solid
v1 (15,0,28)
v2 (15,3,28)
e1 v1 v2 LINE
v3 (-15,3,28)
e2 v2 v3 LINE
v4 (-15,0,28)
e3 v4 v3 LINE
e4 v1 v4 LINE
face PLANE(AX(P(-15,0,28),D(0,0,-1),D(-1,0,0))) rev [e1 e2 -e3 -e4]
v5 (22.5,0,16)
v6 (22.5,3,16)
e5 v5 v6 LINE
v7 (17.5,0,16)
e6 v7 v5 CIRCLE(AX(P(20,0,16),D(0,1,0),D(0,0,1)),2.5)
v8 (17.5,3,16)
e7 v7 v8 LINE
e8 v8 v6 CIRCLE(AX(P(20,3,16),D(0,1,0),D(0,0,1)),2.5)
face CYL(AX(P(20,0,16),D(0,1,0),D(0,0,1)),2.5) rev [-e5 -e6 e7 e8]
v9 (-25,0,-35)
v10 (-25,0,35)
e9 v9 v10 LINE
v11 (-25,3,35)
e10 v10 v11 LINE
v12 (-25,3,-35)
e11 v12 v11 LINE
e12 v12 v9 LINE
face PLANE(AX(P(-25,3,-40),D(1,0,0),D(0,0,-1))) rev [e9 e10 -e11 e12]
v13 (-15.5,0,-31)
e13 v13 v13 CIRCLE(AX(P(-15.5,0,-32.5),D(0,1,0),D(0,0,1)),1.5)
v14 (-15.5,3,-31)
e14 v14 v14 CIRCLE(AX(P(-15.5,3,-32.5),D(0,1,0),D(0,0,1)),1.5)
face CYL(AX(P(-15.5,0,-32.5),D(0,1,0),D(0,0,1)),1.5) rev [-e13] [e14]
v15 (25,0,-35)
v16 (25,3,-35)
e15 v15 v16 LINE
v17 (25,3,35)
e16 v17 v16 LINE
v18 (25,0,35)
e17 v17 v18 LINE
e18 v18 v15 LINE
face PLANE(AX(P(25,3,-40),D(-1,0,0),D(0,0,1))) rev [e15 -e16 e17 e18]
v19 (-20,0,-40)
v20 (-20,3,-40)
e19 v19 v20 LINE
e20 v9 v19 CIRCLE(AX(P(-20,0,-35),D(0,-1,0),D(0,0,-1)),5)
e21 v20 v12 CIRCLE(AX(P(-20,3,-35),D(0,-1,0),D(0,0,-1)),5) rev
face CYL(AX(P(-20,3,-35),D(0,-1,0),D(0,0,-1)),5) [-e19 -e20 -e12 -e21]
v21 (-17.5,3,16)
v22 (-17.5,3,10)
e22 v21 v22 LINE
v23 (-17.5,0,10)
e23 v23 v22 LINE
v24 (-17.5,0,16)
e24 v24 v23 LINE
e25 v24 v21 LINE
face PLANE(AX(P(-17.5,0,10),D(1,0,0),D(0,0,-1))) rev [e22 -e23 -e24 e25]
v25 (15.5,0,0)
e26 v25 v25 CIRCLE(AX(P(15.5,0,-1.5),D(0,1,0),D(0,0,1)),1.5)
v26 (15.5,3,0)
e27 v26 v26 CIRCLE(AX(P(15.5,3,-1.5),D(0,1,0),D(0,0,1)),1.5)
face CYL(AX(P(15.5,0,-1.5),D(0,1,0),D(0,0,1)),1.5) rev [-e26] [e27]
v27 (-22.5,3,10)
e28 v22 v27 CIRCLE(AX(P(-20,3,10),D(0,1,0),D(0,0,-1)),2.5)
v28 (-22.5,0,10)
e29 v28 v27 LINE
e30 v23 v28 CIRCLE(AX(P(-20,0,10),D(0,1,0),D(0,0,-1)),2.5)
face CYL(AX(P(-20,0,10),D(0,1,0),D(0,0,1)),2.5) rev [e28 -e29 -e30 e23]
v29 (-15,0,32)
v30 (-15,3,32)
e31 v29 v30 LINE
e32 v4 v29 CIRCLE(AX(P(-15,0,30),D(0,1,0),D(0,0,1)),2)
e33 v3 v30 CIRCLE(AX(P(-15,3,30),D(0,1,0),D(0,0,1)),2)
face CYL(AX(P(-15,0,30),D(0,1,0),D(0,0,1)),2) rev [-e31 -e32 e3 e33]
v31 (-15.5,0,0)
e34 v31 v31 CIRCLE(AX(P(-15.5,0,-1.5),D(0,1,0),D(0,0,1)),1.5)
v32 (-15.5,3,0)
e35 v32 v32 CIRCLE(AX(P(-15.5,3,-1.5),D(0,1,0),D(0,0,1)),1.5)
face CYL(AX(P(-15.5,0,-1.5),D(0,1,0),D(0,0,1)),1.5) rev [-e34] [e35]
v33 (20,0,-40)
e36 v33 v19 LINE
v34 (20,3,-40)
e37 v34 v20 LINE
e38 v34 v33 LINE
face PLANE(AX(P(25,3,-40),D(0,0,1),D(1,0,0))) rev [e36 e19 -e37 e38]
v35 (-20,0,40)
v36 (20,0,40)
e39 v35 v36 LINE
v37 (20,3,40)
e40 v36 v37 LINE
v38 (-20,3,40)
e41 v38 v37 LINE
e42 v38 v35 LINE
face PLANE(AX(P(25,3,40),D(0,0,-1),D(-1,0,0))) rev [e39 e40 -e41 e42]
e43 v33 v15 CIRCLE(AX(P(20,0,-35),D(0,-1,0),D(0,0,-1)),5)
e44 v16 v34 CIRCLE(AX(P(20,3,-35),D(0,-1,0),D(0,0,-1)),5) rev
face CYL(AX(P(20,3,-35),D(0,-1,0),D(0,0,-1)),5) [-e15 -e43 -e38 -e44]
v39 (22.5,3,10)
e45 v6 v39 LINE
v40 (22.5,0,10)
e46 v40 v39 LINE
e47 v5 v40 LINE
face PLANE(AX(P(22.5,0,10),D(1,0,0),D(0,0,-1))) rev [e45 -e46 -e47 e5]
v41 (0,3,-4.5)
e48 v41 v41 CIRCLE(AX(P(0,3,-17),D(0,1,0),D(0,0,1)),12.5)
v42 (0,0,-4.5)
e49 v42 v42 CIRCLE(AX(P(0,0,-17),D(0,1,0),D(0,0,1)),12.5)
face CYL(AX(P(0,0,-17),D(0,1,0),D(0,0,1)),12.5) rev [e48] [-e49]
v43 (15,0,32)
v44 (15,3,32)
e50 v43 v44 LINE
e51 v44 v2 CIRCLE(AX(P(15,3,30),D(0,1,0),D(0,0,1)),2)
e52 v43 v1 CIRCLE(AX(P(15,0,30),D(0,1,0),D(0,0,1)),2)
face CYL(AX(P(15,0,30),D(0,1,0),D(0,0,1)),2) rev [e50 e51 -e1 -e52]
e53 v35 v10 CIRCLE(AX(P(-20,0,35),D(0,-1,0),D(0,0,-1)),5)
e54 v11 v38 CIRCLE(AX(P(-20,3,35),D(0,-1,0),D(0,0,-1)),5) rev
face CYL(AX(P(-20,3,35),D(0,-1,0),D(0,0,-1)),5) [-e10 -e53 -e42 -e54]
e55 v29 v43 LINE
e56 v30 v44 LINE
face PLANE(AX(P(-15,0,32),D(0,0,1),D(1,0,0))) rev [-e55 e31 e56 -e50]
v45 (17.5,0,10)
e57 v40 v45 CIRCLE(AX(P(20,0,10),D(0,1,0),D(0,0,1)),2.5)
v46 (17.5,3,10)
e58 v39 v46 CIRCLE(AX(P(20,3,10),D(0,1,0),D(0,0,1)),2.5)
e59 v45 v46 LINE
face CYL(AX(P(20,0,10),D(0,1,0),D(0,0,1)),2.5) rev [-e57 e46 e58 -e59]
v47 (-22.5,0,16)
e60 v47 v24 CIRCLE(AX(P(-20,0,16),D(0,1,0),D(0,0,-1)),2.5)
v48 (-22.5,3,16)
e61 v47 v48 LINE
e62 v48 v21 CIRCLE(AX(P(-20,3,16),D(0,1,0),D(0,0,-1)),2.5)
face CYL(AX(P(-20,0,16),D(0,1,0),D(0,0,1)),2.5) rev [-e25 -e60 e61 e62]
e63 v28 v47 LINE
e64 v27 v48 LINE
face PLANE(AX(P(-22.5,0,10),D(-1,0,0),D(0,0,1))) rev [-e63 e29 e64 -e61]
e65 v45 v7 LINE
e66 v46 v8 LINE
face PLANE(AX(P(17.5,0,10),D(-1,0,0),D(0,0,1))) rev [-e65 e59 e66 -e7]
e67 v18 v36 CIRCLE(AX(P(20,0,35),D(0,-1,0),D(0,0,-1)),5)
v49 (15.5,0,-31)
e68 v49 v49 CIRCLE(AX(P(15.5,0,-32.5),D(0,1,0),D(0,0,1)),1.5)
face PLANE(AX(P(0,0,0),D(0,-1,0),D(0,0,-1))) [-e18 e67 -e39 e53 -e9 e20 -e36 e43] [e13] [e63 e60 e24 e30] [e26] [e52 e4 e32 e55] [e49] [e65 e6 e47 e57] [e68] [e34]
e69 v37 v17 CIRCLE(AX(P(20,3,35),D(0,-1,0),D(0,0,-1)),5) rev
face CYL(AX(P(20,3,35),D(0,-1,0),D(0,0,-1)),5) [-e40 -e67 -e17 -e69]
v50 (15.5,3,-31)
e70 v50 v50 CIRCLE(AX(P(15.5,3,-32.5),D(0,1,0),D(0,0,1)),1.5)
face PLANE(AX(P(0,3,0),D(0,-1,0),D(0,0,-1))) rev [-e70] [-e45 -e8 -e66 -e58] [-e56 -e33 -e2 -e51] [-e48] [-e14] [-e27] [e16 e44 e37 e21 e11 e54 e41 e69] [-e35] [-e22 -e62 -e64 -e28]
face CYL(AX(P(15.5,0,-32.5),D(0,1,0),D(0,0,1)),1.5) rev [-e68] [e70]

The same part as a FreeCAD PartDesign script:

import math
import FreeCAD as App
import Part
import Sketcher
from FreeCAD import Vector


def edges_at(feature, points):
    """Names of the edges that pass closest to the given points."""
    edges = feature.Shape.Edges
    near = lambda p: min(range(len(edges)), key=lambda i: edges[i].distToShape(Part.Vertex(*p))[0])
    return sorted({f"Edge{near(p) + 1}" for p in points})


def add_polygon(sketch, points):
    """Adds a closed chain of lines whose ends are joined by coincident constraints."""
    first, n = sketch.GeometryCount, len(points)
    for a, b in zip(points, points[1:] + points[:1]):
        sketch.addGeometry(Part.LineSegment(App.Vector(*a, 0), App.Vector(*b, 0)), False)
    for i in range(n):
        sketch.addConstraint(Sketcher.Constraint("Coincident", first + i, 2, first + (i + 1) % n, 1))

doc = App.newDocument("Part")
body = doc.addObject("PartDesign::Body", "Body")

sketch1 = doc.addObject("Sketcher::SketchObject", "Sketch")
body.addObject(sketch1)
sketch1.AttachmentSupport = (doc.XZ_Plane, [""])
sketch1.MapMode = "FlatFace"
add_polygon(sketch1, [(-25, -40), (-25, 40), (25, 40), (25, -40)])
sketch1.addConstraint([
    Sketcher.Constraint("Vertical", 0),
    Sketcher.Constraint("Horizontal", 1),
    Sketcher.Constraint("Vertical", 2),
    Sketcher.Constraint("Horizontal", 3),
    Sketcher.Constraint("Symmetric", 0, 2, 2, 2, -1, 1),
    Sketcher.Constraint("DistanceX", 1, 1, 1, 2, 50.0),
    Sketcher.Constraint("DistanceY", 0, 1, 0, 2, 80.0),
])
pad1 = doc.addObject("PartDesign::Pad", "Pad")
body.addObject(pad1)
pad1.Profile = sketch1
pad1.Length = 3
pad1.Reversed = True

sketch2 = doc.addObject("Sketcher::SketchObject", "Sketch001")
body.addObject(sketch2)
sketch2.AttachmentSupport = (doc.XZ_Plane, [""])
sketch2.MapMode = "FlatFace"
sketch2.AttachmentOffset = App.Placement(Vector(0, 0, -3), App.Rotation())
sketch2.addGeometry([
    Part.Circle(Vector(15.5, -32.5, 0), Vector(0, 0, 1), 1.5),
    Part.Circle(Vector(-15.5, -32.5, 0), Vector(0, 0, 1), 1.5),
    Part.Circle(Vector(-15.5, -1.5, 0), Vector(0, 0, 1), 1.5),
    Part.Circle(Vector(15.5, -1.5, 0), Vector(0, 0, 1), 1.5),
    Part.Circle(Vector(0, -17, 0), Vector(0, 0, 1), 12.5),
    Part.LineSegment(Vector(15, 28, 0), Vector(-15, 28, 0)),
    Part.ArcOfCircle(Part.Circle(Vector(-15, 30, 0), Vector(0, 0, 1), 2), math.radians(90), math.radians(270)),
    Part.LineSegment(Vector(-15, 32, 0), Vector(15, 32, 0)),
    Part.ArcOfCircle(Part.Circle(Vector(15, 30, 0), Vector(0, 0, 1), 2), math.radians(-90), math.radians(90)),
], False)
sketch2.addConstraint([
    Sketcher.Constraint("Tangent", 5, 2, 6, 2),
    Sketcher.Constraint("Tangent", 6, 1, 7, 1),
    Sketcher.Constraint("Tangent", 7, 2, 8, 2),
    Sketcher.Constraint("Tangent", 8, 1, 5, 1),
    Sketcher.Constraint("Horizontal", 5),
    Sketcher.Constraint("Horizontal", 7),
    Sketcher.Constraint("Equal", 0, 1),
    Sketcher.Constraint("Equal", 1, 2),
    Sketcher.Constraint("Equal", 2, 3),
    Sketcher.Constraint("Symmetric", 0, 3, 1, 3, -2),
    Sketcher.Constraint("Symmetric", 2, 3, 3, 3, -2),
    Sketcher.Constraint("PointOnObject", 4, 3, -2),
    Sketcher.Constraint("Vertical", 1, 3, 2, 3),
    Sketcher.Constraint("Diameter", 0, 3.0),
    Sketcher.Constraint("Diameter", 4, 25.0),
    Sketcher.Constraint("Radius", 6, 2.0),
    Sketcher.Constraint("DistanceX", 5, 2, 5, 1, 30.0),
    Sketcher.Constraint("DistanceY", 4, 3, -1, 1, 17.0),
    Sketcher.Constraint("DistanceX", 6, 3, -1, 1, 15.0),
    Sketcher.Constraint("DistanceY", -1, 1, 6, 3, 30.0),
    Sketcher.Constraint("DistanceX", 1, 3, 0, 3, 31.0),
    Sketcher.Constraint("DistanceY", 1, 3, 2, 3, 31.0),
    Sketcher.Constraint("DistanceY", 0, 3, -1, 1, 32.5),
])
pocket1 = doc.addObject("PartDesign::Pocket", "Pocket")
body.addObject(pocket1)
pocket1.Profile = sketch2
pocket1.Type = "ThroughAll"
pocket1.Reversed = True
doc.recompute()

fillet = doc.addObject("PartDesign::Fillet", "Fillet")
body.addObject(fillet)
fillet.Base = (pocket1, edges_at(pocket1, [
    (-25, 1.5, -40),
    (25, 1.5, -40),
    (25, 1.5, 40),
    (-25, 1.5, 40),
]))
fillet.Radius = 5

sketch3 = doc.addObject("Sketcher::SketchObject", "Sketch002")
body.addObject(sketch3)
sketch3.AttachmentSupport = (doc.XZ_Plane, [""])
sketch3.MapMode = "FlatFace"
sketch3.AttachmentOffset = App.Placement(Vector(0, 0, -3), App.Rotation())
sketch3.addGeometry([
    Part.LineSegment(Vector(22.5, 16, 0), Vector(22.5, 10, 0)),
    Part.ArcOfCircle(Part.Circle(Vector(20, 10, 0), Vector(0, 0, 1), 2.5), math.radians(180), math.radians(360)),
    Part.LineSegment(Vector(17.5, 10, 0), Vector(17.5, 16, 0)),
    Part.ArcOfCircle(Part.Circle(Vector(20, 16, 0), Vector(0, 0, 1), 2.5), math.radians(0), math.radians(180)),
    Part.LineSegment(Vector(-22.5, 10, 0), Vector(-22.5, 16, 0)),
    Part.ArcOfCircle(Part.Circle(Vector(-20, 16, 0), Vector(0, 0, 1), 2.5), math.radians(0), math.radians(180)),
    Part.LineSegment(Vector(-17.5, 16, 0), Vector(-17.5, 10, 0)),
    Part.ArcOfCircle(Part.Circle(Vector(-20, 10, 0), Vector(0, 0, 1), 2.5), math.radians(180), math.radians(360)),
], False)
sketch3.addConstraint([
    Sketcher.Constraint("Tangent", 0, 2, 1, 2),
    Sketcher.Constraint("Tangent", 1, 1, 2, 1),
    Sketcher.Constraint("Tangent", 2, 2, 3, 2),
    Sketcher.Constraint("Tangent", 3, 1, 0, 1),
    Sketcher.Constraint("Tangent", 4, 2, 5, 2),
    Sketcher.Constraint("Tangent", 5, 1, 6, 1),
    Sketcher.Constraint("Tangent", 6, 2, 7, 2),
    Sketcher.Constraint("Tangent", 7, 1, 4, 1),
    Sketcher.Constraint("Vertical", 0),
    Sketcher.Constraint("Vertical", 2),
    Sketcher.Constraint("Vertical", 4),
    Sketcher.Constraint("Vertical", 6),
    Sketcher.Constraint("Equal", 3, 5),
    Sketcher.Constraint("Symmetric", 3, 3, 5, 3, -2),
    Sketcher.Constraint("Horizontal", 1, 3, 7, 3),
    Sketcher.Constraint("Radius", 1, 2.5),
    Sketcher.Constraint("DistanceY", 0, 2, 0, 1, 6.0),
    Sketcher.Constraint("DistanceX", -1, 1, 1, 3, 20.0),
    Sketcher.Constraint("DistanceY", -1, 1, 1, 3, 10.0),
])
pocket2 = doc.addObject("PartDesign::Pocket", "Pocket001")
body.addObject(pocket2)
pocket2.Profile = sketch3
pocket2.Type = "ThroughAll"
pocket2.Reversed = True

doc.recompute()
